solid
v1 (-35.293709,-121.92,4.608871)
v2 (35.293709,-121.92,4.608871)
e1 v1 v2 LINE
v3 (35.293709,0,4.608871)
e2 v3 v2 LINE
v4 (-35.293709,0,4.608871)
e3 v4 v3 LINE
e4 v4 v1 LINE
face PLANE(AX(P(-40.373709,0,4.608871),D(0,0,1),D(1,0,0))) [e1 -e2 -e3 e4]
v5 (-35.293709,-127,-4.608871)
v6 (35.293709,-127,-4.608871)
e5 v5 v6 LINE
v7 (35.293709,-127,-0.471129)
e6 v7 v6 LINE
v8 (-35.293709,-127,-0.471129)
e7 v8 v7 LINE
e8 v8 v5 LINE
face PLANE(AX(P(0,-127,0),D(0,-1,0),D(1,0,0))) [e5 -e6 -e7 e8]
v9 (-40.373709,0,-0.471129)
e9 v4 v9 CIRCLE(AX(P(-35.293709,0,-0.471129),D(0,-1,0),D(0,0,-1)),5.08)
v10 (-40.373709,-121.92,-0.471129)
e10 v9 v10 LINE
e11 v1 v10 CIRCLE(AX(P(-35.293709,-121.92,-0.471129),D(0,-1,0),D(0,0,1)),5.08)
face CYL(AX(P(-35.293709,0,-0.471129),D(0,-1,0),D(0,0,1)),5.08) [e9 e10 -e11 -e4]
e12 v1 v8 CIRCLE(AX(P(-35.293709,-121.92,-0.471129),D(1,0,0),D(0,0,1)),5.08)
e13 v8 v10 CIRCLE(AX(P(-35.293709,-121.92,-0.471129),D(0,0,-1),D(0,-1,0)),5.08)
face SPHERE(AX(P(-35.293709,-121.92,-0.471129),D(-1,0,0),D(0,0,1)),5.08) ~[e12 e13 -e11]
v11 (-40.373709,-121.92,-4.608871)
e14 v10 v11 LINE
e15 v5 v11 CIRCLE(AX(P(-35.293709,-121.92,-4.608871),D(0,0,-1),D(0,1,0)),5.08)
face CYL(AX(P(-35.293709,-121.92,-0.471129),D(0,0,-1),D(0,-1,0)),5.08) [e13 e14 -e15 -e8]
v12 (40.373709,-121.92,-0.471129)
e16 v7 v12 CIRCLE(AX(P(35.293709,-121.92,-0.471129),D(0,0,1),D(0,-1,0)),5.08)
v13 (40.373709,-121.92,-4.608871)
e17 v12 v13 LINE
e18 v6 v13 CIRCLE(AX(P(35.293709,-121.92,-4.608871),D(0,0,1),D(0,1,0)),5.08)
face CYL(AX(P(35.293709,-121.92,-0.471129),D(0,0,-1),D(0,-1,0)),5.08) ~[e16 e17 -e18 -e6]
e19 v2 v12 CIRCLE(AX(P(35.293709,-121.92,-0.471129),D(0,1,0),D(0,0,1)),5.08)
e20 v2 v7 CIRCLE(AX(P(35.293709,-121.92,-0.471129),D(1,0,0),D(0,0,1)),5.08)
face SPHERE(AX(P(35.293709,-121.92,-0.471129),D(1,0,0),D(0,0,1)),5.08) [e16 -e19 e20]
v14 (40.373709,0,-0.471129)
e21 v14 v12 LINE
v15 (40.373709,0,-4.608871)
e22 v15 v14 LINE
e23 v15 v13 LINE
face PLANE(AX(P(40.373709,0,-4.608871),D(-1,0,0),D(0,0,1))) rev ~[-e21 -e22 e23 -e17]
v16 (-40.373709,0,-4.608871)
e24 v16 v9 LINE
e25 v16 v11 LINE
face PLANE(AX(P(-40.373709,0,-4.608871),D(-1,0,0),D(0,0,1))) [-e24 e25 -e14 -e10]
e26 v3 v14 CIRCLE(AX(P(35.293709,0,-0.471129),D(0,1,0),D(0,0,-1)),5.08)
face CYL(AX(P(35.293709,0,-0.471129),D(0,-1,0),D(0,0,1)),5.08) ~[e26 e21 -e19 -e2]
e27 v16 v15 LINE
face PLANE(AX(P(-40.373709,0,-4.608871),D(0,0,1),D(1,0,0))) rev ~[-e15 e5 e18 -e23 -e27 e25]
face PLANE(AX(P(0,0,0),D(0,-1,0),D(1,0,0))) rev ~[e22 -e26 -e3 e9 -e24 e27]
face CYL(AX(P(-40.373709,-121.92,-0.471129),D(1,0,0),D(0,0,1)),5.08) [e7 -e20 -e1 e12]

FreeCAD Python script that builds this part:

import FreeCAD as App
import Part
import Sketcher
Q = App.Units.Quantity


def edges_at(feature, points):
    """Names of the edges that pass closest to the given points."""
    edges = feature.Shape.Edges
    near = lambda p: min(range(len(edges)), key=lambda i: edges[i].distToShape(Part.Vertex(*p))[0])
    return sorted({f"Edge{near(p) + 1}" for p in points})

doc = App.newDocument("Part")
body = doc.addObject("PartDesign::Body", "Body")

# Sketch on XZ plane
sketch1 = body.newObject("Sketcher::SketchObject", "Sketch")
sketch1.AttachmentSupport = (doc.getObject("XZ_Plane"), [""])
sketch1.MapMode = "FlatFace"
sketch1.addGeometry([
    Part.LineSegment(App.Vector(-40, 5, 0), App.Vector(-40, -5, 0)),
    Part.LineSegment(App.Vector(-40, -5, 0), App.Vector(40, -5, 0)),
    Part.LineSegment(App.Vector(40, -5, 0), App.Vector(40, 5, 0)),
    Part.LineSegment(App.Vector(40, 5, 0), App.Vector(-40, 5, 0)),
], False)
sketch1.addConstraint([
    Sketcher.Constraint("Coincident", 0, 2, 1, 1),
    Sketcher.Constraint("Coincident", 1, 2, 2, 1),
    Sketcher.Constraint("Coincident", 2, 2, 3, 1),
    Sketcher.Constraint("Coincident", 3, 2, 0, 1),
    Sketcher.Constraint("Vertical", 0),
    Sketcher.Constraint("Horizontal", 1),
    Sketcher.Constraint("Vertical", 2),
    Sketcher.Constraint("Horizontal", 3),
    Sketcher.Constraint("Symmetric", 0, 2, 2, 2, -1, 1),
    Sketcher.Constraint("DistanceX", 1, 1, 1, 2, Q("80.747418 mm")),
    Sketcher.Constraint("DistanceY", 0, 2, 0, 1, Q("9.217742 mm")),
])
pad1 = body.newObject("PartDesign::Pad", "Pad")
pad1.Profile = sketch1
pad1.Length = Q("5 in")
doc.recompute()

fillet = body.newObject("PartDesign::Fillet", "Fillet")
fillet.Base = (pad1, edges_at(pad1, [(0, -127, 4.609)]))
fillet.Radius = Q("0.2 in")
doc.recompute()

fillet2 = body.newObject("PartDesign::Fillet", "Fillet001")
fillet2.Base = (fillet, edges_at(fillet, [(40.374, -60.96, 4.609)]))
fillet2.Radius = Q("0.2 in")
doc.recompute()

fillet3 = body.newObject("PartDesign::Fillet", "Fillet002")
fillet3.Base = (fillet2, edges_at(fillet2, [(-40.374, -60.96, 4.609)]))
fillet3.Radius = Q("0.2 in")

doc.recompute()
